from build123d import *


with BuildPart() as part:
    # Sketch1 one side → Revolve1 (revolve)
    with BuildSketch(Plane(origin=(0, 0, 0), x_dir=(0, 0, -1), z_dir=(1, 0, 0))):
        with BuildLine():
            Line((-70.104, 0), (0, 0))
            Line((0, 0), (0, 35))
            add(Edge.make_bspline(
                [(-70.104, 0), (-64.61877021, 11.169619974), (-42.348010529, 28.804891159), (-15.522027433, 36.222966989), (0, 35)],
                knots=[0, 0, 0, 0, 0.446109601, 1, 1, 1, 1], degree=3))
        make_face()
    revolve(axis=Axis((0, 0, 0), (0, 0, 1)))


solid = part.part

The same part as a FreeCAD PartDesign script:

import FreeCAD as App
import Part
import Sketcher

V = App.Vector

doc = App.newDocument("Part")
body = doc.addObject("PartDesign::Body", "Body")

sketch1 = body.newObject("Sketcher::SketchObject", "Sketch")
sketch1.AttachmentSupport = (doc.getObject("YZ_Plane"), [""])
sketch1.MapMode = "FlatFace"
sketch1.addGeometry([
    Part.LineSegment(V(0, 70.104, 0), V(0, 0, 0)),
    Part.LineSegment(V(0, 0, 0), V(35, 0, 0)),
    Part.BSplineCurve([V(0, 70.104, 0), V(11.16962, 64.61877, 0), V(28.804891, 42.348011, 0), V(36.222967, 15.522027, 0), V(35, 0, 0)], [4, 1, 4], [0, 0.446109601, 1], False, 3, [1, 1, 1, 1, 1], False),
], False)
sketch1.addConstraint([
    Sketcher.Constraint("Block", 2),
    Sketcher.Constraint("Coincident", 0, 2, 1, 1),
    Sketcher.Constraint("Coincident", 1, 2, 2, 2),
    Sketcher.Constraint("Coincident", 2, 1, 0, 1),
    Sketcher.Constraint("Vertical", 0),
    Sketcher.Constraint("Horizontal", 1),
])
revolution = body.newObject("PartDesign::Revolution", "Revolution")
revolution.Profile = sketch1
revolution.ReferenceAxis = (sketch1, ["V_Axis"])
revolution.Angle = 360

doc.recompute()
